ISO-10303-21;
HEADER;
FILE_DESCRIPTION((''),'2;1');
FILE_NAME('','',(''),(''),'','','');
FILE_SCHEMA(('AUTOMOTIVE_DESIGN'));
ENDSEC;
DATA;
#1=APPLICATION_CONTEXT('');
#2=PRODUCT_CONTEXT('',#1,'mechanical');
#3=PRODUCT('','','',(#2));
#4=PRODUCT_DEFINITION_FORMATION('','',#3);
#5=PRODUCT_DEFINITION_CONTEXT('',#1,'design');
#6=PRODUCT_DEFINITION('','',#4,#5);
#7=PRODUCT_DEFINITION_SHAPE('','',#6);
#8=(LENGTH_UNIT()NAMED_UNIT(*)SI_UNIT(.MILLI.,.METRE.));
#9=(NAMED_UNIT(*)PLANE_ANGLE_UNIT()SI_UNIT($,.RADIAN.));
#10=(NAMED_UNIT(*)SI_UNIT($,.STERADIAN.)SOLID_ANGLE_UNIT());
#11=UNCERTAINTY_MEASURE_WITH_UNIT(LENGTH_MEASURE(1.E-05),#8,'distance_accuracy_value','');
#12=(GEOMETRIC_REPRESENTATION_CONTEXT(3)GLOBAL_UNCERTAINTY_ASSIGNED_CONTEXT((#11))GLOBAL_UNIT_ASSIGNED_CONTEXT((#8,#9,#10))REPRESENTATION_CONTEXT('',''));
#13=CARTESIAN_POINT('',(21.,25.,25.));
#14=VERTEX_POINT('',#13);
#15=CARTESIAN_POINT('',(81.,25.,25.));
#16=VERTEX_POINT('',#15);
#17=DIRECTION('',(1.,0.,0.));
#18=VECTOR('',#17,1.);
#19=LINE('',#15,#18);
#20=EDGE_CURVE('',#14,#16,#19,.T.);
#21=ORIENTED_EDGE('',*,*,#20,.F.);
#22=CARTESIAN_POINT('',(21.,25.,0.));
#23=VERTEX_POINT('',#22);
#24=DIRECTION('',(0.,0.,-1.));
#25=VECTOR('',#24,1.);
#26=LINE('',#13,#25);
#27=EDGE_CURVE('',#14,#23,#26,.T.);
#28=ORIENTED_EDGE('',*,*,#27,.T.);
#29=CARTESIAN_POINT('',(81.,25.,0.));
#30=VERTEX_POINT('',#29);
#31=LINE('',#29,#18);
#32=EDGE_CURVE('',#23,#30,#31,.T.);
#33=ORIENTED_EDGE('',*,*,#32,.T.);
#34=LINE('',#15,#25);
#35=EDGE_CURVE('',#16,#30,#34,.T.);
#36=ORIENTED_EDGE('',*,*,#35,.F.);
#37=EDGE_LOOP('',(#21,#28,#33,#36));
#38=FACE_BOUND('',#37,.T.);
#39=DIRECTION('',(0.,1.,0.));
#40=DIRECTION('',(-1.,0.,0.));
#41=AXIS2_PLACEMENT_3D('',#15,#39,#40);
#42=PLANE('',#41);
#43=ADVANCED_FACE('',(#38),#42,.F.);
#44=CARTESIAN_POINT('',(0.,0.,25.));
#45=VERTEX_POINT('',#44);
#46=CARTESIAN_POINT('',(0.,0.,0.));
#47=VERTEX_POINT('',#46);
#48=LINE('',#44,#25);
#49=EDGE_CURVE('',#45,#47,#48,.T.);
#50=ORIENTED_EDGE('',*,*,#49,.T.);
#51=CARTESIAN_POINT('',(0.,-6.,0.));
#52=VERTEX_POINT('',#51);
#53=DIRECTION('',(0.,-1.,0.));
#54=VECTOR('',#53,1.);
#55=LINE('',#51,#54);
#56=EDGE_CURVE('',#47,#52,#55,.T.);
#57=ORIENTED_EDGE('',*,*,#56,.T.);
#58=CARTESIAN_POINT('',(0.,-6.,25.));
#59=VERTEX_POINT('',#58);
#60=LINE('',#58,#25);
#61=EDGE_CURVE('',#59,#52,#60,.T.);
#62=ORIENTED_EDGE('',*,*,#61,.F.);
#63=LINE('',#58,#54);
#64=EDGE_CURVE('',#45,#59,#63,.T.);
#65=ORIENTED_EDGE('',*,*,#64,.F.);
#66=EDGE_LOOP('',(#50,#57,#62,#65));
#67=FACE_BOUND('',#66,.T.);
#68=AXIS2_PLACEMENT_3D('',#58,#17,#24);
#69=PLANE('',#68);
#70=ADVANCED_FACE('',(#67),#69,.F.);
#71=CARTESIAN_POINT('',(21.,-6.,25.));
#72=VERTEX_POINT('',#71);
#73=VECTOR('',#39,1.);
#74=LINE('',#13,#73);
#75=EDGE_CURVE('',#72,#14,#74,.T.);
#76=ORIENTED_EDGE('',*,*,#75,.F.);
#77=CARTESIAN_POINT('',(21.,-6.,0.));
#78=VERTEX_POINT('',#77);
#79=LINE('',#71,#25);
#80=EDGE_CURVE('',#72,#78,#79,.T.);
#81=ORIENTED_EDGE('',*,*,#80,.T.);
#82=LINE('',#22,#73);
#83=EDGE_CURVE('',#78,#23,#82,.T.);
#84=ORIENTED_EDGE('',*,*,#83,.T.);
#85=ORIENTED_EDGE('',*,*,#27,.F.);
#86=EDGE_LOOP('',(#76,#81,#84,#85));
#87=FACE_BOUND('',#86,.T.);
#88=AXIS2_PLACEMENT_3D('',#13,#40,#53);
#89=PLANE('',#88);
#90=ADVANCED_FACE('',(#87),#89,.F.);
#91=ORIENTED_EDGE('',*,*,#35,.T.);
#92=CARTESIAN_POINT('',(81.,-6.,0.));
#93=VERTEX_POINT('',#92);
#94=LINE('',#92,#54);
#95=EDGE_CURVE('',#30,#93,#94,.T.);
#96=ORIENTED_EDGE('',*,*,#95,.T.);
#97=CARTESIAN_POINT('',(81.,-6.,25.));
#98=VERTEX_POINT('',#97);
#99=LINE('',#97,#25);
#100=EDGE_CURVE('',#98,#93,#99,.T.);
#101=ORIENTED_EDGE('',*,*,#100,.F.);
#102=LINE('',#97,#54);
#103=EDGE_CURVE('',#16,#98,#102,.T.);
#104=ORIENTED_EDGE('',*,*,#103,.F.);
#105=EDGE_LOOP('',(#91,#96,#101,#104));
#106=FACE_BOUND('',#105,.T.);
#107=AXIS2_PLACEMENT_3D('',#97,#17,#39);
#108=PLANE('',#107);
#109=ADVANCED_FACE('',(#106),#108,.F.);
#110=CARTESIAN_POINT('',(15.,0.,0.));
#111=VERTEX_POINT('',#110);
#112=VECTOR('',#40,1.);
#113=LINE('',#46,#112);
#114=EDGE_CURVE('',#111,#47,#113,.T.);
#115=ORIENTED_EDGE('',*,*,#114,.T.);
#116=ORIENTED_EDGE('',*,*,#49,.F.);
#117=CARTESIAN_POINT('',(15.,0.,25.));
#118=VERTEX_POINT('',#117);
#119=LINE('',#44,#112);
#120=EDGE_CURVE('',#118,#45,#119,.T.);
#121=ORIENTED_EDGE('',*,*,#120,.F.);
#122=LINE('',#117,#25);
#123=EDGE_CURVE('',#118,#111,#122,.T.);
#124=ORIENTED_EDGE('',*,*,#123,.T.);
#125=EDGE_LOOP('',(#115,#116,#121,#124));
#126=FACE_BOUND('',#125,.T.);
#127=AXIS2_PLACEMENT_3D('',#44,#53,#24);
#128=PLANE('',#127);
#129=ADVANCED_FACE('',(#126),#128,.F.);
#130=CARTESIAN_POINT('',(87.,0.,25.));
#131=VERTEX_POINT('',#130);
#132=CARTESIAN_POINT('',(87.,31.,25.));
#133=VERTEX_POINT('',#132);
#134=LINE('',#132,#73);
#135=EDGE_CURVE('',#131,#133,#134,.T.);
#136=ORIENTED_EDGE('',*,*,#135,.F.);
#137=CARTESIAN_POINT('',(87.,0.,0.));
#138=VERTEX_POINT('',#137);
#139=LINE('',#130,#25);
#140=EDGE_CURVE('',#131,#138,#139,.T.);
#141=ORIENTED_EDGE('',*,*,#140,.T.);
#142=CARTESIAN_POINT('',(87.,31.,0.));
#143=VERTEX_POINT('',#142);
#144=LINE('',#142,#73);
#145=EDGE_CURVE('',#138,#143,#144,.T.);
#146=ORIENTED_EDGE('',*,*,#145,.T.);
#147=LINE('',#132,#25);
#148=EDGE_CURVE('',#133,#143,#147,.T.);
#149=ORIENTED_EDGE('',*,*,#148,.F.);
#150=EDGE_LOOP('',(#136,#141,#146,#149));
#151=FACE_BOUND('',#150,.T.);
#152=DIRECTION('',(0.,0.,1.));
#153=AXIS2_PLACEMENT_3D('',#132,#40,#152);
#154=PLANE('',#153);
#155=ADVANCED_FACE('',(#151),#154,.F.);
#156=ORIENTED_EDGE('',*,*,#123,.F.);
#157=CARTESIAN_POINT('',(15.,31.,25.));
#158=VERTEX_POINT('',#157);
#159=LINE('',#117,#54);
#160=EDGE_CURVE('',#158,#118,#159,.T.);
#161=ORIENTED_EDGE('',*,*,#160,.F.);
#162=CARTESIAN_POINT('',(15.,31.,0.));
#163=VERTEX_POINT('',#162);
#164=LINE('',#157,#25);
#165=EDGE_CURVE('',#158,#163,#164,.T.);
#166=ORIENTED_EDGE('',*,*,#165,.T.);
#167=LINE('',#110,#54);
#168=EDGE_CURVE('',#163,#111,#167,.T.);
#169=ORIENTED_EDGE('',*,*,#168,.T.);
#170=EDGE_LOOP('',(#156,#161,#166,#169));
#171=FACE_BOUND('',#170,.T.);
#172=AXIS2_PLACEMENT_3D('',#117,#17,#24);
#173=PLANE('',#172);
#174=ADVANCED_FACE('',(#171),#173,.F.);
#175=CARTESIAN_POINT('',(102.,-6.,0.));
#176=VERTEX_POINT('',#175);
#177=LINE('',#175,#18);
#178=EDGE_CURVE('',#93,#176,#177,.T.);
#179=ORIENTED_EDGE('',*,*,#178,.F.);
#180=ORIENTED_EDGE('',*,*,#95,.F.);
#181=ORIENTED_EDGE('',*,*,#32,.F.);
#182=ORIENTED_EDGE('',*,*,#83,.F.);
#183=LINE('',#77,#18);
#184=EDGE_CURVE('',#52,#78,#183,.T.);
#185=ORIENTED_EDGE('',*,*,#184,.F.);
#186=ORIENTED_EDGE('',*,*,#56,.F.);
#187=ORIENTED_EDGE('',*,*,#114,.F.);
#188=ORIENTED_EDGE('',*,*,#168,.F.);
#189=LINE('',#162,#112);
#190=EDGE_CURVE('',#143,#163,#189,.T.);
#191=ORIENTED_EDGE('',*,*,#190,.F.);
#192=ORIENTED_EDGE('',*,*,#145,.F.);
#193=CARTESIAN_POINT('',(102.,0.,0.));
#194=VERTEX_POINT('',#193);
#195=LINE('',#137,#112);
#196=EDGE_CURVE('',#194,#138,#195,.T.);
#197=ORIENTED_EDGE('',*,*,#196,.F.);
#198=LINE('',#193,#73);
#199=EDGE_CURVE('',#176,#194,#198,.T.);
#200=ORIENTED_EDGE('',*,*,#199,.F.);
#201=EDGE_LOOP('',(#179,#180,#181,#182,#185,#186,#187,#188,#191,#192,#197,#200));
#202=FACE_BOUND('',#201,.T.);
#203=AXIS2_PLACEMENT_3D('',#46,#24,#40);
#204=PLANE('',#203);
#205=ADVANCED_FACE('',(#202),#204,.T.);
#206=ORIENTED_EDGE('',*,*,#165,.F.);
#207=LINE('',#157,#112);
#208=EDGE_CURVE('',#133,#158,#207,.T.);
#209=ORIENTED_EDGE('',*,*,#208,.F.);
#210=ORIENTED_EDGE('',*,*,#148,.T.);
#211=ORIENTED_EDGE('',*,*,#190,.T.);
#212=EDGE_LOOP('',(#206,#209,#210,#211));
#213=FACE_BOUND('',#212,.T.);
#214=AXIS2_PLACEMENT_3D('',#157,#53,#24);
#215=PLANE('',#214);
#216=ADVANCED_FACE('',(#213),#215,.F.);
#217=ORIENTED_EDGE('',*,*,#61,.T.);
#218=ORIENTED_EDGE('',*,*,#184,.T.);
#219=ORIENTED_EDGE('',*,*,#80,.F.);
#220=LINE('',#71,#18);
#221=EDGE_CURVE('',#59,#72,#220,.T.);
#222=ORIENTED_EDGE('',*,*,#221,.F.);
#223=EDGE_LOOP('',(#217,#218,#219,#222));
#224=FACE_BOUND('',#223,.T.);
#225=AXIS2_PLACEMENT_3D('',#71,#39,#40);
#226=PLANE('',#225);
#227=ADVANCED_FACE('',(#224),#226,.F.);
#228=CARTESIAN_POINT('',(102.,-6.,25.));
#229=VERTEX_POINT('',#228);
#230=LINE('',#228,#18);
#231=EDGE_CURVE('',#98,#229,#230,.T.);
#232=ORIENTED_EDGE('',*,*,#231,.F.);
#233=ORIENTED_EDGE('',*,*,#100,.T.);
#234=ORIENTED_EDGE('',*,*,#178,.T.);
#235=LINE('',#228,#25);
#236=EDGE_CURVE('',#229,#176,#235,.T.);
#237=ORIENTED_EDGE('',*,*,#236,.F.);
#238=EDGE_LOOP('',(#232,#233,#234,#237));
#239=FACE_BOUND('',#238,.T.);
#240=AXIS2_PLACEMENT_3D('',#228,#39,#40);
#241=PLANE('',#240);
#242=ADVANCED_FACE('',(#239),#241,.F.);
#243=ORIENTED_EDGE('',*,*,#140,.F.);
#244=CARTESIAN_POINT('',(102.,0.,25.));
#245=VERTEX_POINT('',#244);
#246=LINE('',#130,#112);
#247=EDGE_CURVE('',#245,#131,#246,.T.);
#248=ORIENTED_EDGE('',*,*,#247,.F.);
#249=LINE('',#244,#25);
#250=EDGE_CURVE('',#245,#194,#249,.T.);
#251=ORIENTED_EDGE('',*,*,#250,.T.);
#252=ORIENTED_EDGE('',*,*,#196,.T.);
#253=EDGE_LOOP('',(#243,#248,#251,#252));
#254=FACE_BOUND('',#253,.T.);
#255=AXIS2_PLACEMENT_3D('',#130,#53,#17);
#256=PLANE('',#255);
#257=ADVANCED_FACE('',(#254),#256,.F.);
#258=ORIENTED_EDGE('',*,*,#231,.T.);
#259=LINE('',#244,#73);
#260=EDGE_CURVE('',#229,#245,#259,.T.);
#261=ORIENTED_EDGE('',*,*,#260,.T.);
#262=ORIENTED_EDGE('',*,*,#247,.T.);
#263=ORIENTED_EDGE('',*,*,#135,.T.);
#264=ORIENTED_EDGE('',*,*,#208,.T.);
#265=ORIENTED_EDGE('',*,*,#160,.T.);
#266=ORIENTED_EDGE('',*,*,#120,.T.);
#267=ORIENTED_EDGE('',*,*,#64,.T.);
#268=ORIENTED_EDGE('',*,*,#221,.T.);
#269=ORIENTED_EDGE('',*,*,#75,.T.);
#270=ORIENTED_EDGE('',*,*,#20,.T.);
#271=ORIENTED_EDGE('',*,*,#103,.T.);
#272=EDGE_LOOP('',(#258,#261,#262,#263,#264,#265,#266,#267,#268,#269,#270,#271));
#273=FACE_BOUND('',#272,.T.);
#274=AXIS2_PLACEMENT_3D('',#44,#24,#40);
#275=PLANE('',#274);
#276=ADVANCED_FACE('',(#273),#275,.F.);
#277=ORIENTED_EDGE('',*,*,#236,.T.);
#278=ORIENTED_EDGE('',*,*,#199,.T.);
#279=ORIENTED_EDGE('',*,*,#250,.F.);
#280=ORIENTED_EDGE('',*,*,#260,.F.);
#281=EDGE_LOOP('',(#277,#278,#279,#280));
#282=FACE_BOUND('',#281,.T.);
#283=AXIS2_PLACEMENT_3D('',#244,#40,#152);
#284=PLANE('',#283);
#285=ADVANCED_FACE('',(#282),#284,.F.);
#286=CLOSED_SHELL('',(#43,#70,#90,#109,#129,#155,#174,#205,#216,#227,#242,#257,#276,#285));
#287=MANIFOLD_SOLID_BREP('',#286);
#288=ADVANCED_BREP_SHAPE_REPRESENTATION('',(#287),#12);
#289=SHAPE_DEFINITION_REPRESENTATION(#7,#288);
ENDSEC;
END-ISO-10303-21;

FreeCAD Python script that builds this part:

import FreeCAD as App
import Part
import Sketcher
from FreeCAD import Vector


def add_polygon(sketch, points):
    """Adds a closed chain of lines whose ends are joined by coincident constraints."""
    first, n = sketch.GeometryCount, len(points)
    for a, b in zip(points, points[1:] + points[:1]):
        sketch.addGeometry(Part.LineSegment(App.Vector(*a, 0), App.Vector(*b, 0)), False)
    for i in range(n):
        sketch.addConstraint(Sketcher.Constraint("Coincident", first + i, 2, first + (i + 1) % n, 1))

doc = App.newDocument("Part")
body = doc.addObject("PartDesign::Body", "Body")

# Sketch on XY plane
sketch1 = body.newObject("Sketcher::SketchObject", "Sketch")
sketch1.AttachmentSupport = (doc.getObject("XY_Plane"), [""])
sketch1.MapMode = "FlatFace"
add_polygon(sketch1, [(15, 0), (0, 0), (0, -6), (21, -6), (21, 25), (81, 25), (81, -6), (102, -6), (102, 0), (87, 0), (87, 31), (15, 31)])  # lines 0-11
sketch1.addConstraint(Sketcher.Constraint("Horizontal", 0))
sketch1.addConstraint(Sketcher.Constraint("Vertical", 1))
sketch1.addConstraint(Sketcher.Constraint("Horizontal", 2))
sketch1.addConstraint(Sketcher.Constraint("Vertical", 3))
sketch1.addConstraint(Sketcher.Constraint("Horizontal", 4))
sketch1.addConstraint(Sketcher.Constraint("Vertical", 5))
sketch1.addConstraint(Sketcher.Constraint("Horizontal", 6))
sketch1.addConstraint(Sketcher.Constraint("Vertical", 7))
sketch1.addConstraint(Sketcher.Constraint("Horizontal", 8))
sketch1.addConstraint(Sketcher.Constraint("Vertical", 9))
sketch1.addConstraint(Sketcher.Constraint("Horizontal", 10))
sketch1.addConstraint(Sketcher.Constraint("Vertical", 11))
sketch1.addConstraint(Sketcher.Constraint("Coincident", 0, 2, -1, 1))
sketch1.addConstraint(Sketcher.Constraint("PointOnObject", 7, 2, -1))
sketch1.addConstraint(Sketcher.Constraint("Horizontal", 2, 2, 5, 2))
sketch1.addConstraint(Sketcher.Constraint("Equal", 2, 6))
sketch1.addConstraint(Sketcher.Constraint("Equal", 0, 8))
sketch1.addConstraint(Sketcher.Constraint("Equal", 5, 9))
sketch1.addConstraint(Sketcher.Constraint("DistanceX", 0, 2, 0, 1, 15.0))
sketch1.addConstraint(Sketcher.Constraint("DistanceX", 2, 1, 2, 2, 21.0))
sketch1.addConstraint(Sketcher.Constraint("DistanceX", 4, 1, 4, 2, 60.0))
sketch1.addConstraint(Sketcher.Constraint("DistanceY", 1, 2, 1, 1, 6.0))
sketch1.addConstraint(Sketcher.Constraint("DistanceY", 3, 1, 3, 2, 31.0))
pad1 = body.newObject("PartDesign::Pad", "Pad")
pad1.Profile = sketch1
pad1.Length = 25

doc.recompute()
